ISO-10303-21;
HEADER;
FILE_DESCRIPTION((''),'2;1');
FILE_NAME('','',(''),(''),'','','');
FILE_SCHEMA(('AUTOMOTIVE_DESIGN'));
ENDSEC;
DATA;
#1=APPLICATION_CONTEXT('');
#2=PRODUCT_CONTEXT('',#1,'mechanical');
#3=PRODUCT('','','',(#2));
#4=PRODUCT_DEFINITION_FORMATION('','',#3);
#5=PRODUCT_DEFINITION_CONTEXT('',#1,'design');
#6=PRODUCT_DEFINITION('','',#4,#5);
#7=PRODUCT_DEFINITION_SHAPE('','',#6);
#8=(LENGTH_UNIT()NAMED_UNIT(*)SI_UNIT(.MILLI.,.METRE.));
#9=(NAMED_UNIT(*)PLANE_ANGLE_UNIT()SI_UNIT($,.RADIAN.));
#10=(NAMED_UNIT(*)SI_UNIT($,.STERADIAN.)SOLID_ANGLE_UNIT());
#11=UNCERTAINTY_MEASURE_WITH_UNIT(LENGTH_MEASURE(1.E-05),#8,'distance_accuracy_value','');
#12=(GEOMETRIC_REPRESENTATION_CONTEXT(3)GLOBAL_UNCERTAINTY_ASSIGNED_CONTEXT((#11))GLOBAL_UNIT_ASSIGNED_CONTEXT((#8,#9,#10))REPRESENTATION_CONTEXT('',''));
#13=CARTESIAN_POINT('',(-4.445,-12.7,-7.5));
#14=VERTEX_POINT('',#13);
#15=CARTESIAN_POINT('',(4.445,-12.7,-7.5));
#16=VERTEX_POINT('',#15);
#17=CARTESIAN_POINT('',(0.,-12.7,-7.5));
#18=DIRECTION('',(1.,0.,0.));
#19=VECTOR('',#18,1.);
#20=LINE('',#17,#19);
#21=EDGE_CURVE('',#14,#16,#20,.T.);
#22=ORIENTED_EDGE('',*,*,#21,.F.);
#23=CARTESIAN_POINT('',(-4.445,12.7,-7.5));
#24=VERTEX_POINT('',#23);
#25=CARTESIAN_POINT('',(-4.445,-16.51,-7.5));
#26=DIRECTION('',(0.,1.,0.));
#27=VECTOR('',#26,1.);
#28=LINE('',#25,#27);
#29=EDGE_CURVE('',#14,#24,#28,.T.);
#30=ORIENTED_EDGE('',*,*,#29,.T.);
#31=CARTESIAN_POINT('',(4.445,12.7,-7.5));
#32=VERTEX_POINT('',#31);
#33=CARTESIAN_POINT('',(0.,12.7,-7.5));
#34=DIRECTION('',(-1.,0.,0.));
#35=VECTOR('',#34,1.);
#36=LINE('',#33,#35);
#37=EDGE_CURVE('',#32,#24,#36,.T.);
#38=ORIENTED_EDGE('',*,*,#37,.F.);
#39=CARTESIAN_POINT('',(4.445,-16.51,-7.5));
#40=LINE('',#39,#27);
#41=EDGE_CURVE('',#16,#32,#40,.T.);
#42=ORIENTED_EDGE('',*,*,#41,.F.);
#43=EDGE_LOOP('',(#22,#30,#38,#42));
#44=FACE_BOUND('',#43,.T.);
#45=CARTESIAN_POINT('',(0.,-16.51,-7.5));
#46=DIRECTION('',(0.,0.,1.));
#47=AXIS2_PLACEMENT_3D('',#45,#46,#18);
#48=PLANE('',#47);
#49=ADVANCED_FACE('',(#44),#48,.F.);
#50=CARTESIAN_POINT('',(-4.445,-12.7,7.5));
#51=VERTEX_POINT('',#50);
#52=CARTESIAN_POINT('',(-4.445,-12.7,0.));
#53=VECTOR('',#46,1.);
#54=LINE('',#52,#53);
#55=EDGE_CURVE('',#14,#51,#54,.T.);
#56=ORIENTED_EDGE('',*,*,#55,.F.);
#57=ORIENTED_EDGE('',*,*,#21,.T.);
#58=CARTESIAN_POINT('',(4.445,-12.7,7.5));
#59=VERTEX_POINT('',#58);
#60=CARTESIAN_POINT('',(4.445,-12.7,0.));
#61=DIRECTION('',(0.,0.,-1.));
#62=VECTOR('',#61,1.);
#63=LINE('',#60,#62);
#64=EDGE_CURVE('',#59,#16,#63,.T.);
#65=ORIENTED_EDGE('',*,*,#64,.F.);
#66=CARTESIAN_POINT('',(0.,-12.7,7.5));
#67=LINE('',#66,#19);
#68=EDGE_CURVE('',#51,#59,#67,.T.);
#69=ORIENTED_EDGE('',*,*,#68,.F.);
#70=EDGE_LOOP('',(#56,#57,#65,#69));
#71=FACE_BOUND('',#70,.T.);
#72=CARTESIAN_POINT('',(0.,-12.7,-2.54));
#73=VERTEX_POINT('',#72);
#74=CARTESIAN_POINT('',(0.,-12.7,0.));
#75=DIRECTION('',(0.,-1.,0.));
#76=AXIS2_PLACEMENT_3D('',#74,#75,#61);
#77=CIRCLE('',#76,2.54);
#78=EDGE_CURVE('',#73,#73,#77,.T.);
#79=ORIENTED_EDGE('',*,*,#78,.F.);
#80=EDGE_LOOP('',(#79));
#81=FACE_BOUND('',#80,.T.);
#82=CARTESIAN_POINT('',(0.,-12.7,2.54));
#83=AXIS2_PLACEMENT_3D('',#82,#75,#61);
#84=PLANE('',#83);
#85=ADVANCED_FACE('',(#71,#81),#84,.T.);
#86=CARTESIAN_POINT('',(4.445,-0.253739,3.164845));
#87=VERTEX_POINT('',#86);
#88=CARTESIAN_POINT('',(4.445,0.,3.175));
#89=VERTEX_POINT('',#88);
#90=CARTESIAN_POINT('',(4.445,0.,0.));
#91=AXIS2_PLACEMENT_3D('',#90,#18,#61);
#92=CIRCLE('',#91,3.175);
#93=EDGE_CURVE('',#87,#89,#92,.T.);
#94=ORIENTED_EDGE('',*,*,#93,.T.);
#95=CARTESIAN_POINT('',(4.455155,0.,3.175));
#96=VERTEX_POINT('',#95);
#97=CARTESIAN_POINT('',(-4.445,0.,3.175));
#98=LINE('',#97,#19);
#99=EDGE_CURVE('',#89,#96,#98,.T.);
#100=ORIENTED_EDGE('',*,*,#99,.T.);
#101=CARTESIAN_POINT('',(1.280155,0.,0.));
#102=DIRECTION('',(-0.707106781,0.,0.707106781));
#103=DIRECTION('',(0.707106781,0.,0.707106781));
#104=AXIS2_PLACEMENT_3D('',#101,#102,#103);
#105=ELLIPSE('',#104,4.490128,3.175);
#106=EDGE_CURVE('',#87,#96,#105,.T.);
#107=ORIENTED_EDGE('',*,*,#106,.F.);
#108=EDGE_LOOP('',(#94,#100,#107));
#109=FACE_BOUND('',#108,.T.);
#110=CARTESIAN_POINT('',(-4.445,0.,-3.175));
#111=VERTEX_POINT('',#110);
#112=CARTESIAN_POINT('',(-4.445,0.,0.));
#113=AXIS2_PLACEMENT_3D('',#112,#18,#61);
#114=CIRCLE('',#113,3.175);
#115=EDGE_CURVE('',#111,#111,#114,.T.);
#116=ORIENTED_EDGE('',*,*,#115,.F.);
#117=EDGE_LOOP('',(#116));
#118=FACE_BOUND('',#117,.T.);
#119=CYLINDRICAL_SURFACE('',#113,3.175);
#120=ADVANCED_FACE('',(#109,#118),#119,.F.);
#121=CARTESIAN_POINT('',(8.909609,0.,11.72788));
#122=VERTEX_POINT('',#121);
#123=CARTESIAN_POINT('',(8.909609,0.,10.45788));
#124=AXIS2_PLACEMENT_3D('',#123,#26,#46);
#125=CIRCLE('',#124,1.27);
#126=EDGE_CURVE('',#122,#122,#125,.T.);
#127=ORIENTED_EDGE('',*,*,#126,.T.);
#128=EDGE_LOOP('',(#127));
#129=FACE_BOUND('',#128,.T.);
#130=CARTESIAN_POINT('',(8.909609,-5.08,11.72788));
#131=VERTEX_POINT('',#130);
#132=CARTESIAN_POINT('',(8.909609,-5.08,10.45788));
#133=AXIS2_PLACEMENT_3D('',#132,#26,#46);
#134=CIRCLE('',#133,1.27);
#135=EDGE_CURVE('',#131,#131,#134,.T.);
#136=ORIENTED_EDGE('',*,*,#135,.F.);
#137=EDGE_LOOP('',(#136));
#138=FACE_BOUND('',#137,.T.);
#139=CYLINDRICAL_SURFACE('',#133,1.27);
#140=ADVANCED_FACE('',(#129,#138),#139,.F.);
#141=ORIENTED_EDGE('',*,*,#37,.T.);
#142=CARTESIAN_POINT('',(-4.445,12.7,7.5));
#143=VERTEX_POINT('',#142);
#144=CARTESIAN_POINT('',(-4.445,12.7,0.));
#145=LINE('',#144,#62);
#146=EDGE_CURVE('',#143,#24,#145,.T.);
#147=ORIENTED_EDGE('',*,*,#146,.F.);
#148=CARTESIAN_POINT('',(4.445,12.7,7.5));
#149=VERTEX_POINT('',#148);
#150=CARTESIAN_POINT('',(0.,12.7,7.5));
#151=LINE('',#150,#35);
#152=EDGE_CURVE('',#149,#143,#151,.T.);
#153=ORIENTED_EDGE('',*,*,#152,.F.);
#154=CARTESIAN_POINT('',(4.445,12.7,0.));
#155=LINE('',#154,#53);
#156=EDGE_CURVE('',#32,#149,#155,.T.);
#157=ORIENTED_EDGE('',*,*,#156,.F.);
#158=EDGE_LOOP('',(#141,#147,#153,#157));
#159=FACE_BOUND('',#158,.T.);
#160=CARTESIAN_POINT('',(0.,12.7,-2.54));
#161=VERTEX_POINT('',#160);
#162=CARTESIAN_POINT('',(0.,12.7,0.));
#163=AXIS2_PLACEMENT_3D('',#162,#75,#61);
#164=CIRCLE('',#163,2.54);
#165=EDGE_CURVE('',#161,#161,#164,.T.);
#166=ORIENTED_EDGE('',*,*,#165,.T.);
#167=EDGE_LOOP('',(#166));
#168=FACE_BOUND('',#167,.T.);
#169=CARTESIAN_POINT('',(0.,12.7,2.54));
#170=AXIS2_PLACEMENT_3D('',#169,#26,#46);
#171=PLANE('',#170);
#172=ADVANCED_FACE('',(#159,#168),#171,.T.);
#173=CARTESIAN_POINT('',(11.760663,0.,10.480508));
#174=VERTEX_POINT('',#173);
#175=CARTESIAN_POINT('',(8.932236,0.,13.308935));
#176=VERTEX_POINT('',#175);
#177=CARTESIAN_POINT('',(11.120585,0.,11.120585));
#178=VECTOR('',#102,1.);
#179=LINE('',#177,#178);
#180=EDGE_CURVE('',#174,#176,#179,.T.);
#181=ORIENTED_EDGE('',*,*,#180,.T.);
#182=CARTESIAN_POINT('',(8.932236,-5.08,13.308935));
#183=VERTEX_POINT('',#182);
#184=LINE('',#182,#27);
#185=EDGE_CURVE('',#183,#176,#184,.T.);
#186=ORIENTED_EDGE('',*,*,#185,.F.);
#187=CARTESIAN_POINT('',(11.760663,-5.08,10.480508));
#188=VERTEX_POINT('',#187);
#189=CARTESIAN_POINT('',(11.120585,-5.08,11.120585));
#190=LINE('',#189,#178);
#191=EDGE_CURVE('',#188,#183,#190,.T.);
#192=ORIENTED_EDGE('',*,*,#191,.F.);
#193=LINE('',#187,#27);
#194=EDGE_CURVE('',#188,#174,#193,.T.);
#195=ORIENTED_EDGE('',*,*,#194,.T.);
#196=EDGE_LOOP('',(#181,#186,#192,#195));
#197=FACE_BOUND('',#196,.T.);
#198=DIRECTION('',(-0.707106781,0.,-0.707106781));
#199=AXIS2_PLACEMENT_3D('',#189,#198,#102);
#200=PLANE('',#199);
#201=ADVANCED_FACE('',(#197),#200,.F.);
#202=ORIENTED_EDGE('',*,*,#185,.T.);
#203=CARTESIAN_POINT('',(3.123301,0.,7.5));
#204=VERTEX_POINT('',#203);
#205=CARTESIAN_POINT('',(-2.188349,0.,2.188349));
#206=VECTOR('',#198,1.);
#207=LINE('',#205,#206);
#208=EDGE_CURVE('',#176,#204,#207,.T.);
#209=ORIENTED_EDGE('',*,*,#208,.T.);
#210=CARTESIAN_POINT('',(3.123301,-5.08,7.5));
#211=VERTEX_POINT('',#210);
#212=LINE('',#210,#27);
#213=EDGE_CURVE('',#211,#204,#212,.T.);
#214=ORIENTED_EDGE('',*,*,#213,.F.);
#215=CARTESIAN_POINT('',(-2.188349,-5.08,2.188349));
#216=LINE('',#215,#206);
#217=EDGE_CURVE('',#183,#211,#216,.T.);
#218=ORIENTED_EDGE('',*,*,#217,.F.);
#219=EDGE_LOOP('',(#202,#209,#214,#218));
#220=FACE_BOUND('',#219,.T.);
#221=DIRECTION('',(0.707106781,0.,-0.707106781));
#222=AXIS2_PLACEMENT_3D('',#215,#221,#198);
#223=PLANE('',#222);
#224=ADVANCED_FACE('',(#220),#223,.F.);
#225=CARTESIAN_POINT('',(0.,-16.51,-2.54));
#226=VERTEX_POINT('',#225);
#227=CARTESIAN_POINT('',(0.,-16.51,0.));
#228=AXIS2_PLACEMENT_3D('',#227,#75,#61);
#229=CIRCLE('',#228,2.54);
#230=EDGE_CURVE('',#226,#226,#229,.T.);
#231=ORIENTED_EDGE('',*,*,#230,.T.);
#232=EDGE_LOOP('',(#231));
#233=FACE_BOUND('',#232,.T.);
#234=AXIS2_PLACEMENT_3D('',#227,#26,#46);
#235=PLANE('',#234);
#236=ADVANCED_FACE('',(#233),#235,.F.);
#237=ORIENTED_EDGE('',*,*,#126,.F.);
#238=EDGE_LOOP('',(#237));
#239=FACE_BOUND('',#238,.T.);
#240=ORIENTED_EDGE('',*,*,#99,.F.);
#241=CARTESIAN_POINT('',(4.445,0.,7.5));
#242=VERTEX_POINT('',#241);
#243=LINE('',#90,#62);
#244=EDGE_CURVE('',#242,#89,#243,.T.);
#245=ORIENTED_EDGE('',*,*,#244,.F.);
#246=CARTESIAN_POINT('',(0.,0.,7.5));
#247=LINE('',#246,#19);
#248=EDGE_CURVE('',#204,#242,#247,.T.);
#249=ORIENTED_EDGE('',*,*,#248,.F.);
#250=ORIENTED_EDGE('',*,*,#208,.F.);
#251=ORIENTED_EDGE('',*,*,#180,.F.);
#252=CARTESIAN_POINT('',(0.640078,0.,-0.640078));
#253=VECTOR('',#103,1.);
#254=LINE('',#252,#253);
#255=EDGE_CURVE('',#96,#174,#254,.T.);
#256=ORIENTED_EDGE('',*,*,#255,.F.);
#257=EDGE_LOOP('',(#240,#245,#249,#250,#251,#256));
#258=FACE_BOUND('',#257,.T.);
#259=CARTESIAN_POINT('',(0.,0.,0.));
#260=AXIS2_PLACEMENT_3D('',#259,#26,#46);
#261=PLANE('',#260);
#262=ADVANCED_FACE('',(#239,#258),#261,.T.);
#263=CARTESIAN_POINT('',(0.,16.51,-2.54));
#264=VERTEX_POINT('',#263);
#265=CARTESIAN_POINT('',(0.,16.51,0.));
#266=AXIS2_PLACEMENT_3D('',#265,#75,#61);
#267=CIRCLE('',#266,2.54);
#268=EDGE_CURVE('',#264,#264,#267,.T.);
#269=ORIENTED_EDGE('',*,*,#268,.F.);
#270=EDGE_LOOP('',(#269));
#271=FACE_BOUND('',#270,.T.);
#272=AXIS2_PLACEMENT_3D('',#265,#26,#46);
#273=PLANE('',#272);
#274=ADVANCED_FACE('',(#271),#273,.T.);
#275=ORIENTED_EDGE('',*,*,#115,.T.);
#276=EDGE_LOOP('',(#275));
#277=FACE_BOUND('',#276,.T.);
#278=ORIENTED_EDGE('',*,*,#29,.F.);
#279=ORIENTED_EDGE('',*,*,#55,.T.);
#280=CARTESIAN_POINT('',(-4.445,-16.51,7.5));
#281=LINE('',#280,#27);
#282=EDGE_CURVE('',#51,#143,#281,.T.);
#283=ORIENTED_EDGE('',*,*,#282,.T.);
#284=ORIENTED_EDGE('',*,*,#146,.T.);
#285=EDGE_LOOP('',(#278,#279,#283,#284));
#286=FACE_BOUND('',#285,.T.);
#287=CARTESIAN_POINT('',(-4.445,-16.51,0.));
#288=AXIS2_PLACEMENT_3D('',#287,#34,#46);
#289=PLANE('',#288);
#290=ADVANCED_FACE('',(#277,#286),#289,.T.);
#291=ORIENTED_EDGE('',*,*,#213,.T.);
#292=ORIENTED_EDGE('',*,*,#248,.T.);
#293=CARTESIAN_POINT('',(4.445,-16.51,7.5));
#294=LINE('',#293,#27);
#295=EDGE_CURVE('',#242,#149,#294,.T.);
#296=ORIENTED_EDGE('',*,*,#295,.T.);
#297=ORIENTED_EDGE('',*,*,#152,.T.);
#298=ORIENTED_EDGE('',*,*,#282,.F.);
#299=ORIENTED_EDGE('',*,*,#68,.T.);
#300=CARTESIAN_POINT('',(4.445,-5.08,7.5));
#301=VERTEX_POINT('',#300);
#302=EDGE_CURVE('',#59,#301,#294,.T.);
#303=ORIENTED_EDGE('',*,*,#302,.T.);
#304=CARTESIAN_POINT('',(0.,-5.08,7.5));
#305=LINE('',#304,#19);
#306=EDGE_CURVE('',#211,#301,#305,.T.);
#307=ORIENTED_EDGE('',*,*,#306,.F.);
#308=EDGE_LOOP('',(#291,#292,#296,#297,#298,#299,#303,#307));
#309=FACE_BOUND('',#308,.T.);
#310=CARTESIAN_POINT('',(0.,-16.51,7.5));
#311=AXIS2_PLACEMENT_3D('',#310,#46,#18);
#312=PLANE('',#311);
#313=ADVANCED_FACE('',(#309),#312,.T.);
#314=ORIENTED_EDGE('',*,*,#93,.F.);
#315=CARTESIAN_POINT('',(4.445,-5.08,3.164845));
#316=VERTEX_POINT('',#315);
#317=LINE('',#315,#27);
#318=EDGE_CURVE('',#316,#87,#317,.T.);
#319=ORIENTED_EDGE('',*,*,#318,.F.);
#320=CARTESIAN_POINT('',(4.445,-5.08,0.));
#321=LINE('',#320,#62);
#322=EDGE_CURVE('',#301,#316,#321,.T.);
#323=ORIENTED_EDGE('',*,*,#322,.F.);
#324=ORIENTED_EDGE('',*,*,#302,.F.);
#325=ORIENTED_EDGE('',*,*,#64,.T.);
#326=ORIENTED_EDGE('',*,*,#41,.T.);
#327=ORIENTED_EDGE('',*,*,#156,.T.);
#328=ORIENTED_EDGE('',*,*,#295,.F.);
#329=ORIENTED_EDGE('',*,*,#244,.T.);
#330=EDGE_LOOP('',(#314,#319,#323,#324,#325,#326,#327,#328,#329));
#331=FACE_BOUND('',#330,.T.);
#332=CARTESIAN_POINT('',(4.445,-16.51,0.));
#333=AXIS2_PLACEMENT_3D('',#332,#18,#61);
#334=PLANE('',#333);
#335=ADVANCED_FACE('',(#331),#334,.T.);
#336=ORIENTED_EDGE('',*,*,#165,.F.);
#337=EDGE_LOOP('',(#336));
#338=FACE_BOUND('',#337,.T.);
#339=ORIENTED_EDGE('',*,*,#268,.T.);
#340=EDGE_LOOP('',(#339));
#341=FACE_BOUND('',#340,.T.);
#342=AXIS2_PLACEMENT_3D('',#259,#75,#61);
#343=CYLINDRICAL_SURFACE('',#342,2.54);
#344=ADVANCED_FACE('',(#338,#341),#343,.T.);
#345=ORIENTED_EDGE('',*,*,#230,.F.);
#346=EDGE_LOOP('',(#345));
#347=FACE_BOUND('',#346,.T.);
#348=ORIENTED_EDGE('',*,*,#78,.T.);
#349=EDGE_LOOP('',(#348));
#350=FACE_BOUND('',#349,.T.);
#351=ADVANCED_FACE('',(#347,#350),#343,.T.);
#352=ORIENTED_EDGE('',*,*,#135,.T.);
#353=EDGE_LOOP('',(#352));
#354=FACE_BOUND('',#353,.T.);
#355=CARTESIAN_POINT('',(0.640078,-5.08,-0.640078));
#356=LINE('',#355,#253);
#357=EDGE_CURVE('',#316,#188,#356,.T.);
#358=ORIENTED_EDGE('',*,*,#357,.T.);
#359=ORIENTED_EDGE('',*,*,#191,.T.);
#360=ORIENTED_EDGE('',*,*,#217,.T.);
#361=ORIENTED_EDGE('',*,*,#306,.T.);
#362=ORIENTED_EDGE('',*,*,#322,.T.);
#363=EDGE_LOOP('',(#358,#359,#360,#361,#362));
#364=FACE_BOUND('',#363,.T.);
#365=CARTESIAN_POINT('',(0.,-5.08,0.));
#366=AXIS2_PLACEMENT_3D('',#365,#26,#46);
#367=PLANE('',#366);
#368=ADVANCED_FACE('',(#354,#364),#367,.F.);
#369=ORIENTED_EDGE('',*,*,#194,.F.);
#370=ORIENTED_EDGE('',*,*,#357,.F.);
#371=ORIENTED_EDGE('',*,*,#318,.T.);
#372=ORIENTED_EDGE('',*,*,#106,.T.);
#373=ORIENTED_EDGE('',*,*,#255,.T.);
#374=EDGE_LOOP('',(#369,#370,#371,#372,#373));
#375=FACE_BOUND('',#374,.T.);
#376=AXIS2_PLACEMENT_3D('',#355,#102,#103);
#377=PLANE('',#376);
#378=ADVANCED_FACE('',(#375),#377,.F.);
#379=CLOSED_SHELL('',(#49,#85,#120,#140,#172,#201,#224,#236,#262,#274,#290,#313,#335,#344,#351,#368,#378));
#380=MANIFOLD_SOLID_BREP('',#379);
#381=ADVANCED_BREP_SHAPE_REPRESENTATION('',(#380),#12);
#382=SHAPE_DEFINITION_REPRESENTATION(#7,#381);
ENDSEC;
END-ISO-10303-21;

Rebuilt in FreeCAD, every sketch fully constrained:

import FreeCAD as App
import Part
import Sketcher

V = App.Vector
Q = App.Units.Quantity

doc = App.newDocument("Part")
body = doc.addObject("PartDesign::Body", "Body")

sketch1 = body.newObject("Sketcher::SketchObject", "Sketch")
sketch1.AttachmentSupport = (doc.getObject("XZ_Plane"), [""])
sketch1.MapMode = "FlatFace"
sketch1.addGeometry([
    Part.LineSegment(V(-4.445, -7.5, 0), V(-4.445, 7.5, 0)),
    Part.LineSegment(V(-4.445, 7.5, 0), V(4.445, 7.5, 0)),
    Part.LineSegment(V(4.445, 7.5, 0), V(4.445, -7.5, 0)),
    Part.LineSegment(V(4.445, -7.5, 0), V(-4.445, -7.5, 0)),
], False)
sketch1.addConstraint([
    Sketcher.Constraint("Coincident", 0, 2, 1, 1),
    Sketcher.Constraint("Coincident", 1, 2, 2, 1),
    Sketcher.Constraint("Coincident", 2, 2, 3, 1),
    Sketcher.Constraint("Coincident", 3, 2, 0, 1),
    Sketcher.Constraint("Vertical", 0),
    Sketcher.Constraint("Horizontal", 1),
    Sketcher.Constraint("Vertical", 2),
    Sketcher.Constraint("Horizontal", 3),
    Sketcher.Constraint("Symmetric", 0, 2, 2, 2, -1, 1),
    Sketcher.Constraint("DistanceX", 1, 1, 1, 2, Q("0.35 in")),
    Sketcher.Constraint("DistanceY", 0, 1, 0, 2, 15.0),
])
pad1 = body.newObject("PartDesign::Pad", "Pad")
pad1.Profile = sketch1
pad1.Type = "TwoLengths"
pad1.Length = Q("0.65 in")
pad1.Length2 = Q("0.65 in")
pad1.Reversed = True

sketch2 = body.newObject("Sketcher::SketchObject", "Sketch001")
sketch2.AttachmentSupport = (doc.getObject("XZ_Plane"), [""])
sketch2.MapMode = "FlatFace"
sketch2.addGeometry([
    Part.LineSegment(V(11.760663, 10.480508, 0), V(4.445, 3.164845, 0)),
    Part.LineSegment(V(4.445, 3.164845, 0), V(4.445, 7.5, 0)),
    Part.LineSegment(V(4.445, 7.5, 0), V(3.123301, 7.5, 0)),
    Part.LineSegment(V(3.123301, 7.5, 0), V(8.932236, 13.308935, 0)),
    Part.LineSegment(V(8.932236, 13.308935, 0), V(11.760663, 10.480508, 0)),
    Part.Circle(V(8.909609, 10.45788, 0), V(0, 0, 1), 1.27),
], False)
sketch2.addConstraint([
    Sketcher.Constraint("Coincident", 0, 2, 1, 1),
    Sketcher.Constraint("Coincident", 1, 2, 2, 1),
    Sketcher.Constraint("Coincident", 2, 2, 3, 1),
    Sketcher.Constraint("Coincident", 3, 2, 4, 1),
    Sketcher.Constraint("Coincident", 4, 2, 0, 1),
    Sketcher.Constraint("Vertical", 1),
    Sketcher.Constraint("Horizontal", 2),
    Sketcher.Constraint("Parallel", 0, 3),
    Sketcher.Constraint("Perpendicular", 3, 4),
    Sketcher.Constraint("Diameter", 5, Q("0.1 in")),
    Sketcher.Constraint("Angle", 0, Q("-135 deg")),
    Sketcher.Constraint("DistanceX", -1, 1, 0, 2, Q("0.175 in")),
    Sketcher.Constraint("DistanceX", 2, 2, 2, 1, 1.321699),
    Sketcher.Constraint("DistanceY", -1, 1, 0, 2, Q("0.1246002 in")),
    Sketcher.Constraint("Distance", 4, 4.0),
    Sketcher.Constraint("Distance", 0, 10.34591),
    Sketcher.Constraint("DistanceX", -1, 1, 5, 3, 8.909609),
    Sketcher.Constraint("DistanceY", -1, 1, 5, 3, 10.45788),
])
pad2 = body.newObject("PartDesign::Pad", "Pad001")
pad2.Profile = sketch2
pad2.Length = Q("0.2 in")

sketch3 = body.newObject("Sketcher::SketchObject", "Sketch002")
sketch3.AttachmentSupport = (doc.getObject("YZ_Plane"), [""])
sketch3.MapMode = "FlatFace"
sketch3.addGeometry([
    Part.LineSegment(V(16.51, 19.316229, 0), V(12.7, 19.316229, 0)),
    Part.LineSegment(V(12.7, 19.316229, 0), V(12.7, 2.54, 0)),
    Part.LineSegment(V(12.7, 2.54, 0), V(16.51, 2.54, 0)),
    Part.LineSegment(V(16.51, 2.54, 0), V(16.51, 19.316229, 0)),
    Part.LineSegment(V(-12.7, 19.316229, 0), V(-16.51, 19.316229, 0)),
    Part.LineSegment(V(-16.51, 19.316229, 0), V(-16.51, 2.54, 0)),
    Part.LineSegment(V(-16.51, 2.54, 0), V(-12.7, 2.54, 0)),
    Part.LineSegment(V(-12.7, 2.54, 0), V(-12.7, 19.316229, 0)),
], False)
sketch3.addConstraint([
    Sketcher.Constraint("Coincident", 0, 2, 1, 1),
    Sketcher.Constraint("Coincident", 1, 2, 2, 1),
    Sketcher.Constraint("Coincident", 2, 2, 3, 1),
    Sketcher.Constraint("Coincident", 3, 2, 0, 1),
    Sketcher.Constraint("Coincident", 4, 2, 5, 1),
    Sketcher.Constraint("Coincident", 5, 2, 6, 1),
    Sketcher.Constraint("Coincident", 6, 2, 7, 1),
    Sketcher.Constraint("Coincident", 7, 2, 4, 1),
    Sketcher.Constraint("Horizontal", 0),
    Sketcher.Constraint("Vertical", 1),
    Sketcher.Constraint("Horizontal", 2),
    Sketcher.Constraint("Vertical", 3),
    Sketcher.Constraint("Horizontal", 4),
    Sketcher.Constraint("Vertical", 5),
    Sketcher.Constraint("Horizontal", 6),
    Sketcher.Constraint("Vertical", 7),
    Sketcher.Constraint("Symmetric", 3, 2, 4, 2, -2),
    Sketcher.Constraint("Symmetric", 1, 2, 6, 2, -2),
    Sketcher.Constraint("DistanceX", 6, 2, 1, 2, Q("1 in")),
    Sketcher.Constraint("DistanceX", 0, 2, 0, 1, Q("0.15 in")),
    Sketcher.Constraint("DistanceY", -1, 1, 1, 2, Q("0.1 in")),
    Sketcher.Constraint("DistanceY", 1, 2, 1, 1, 16.776229),
])
groove = body.newObject("PartDesign::Groove", "Groove")
groove.Profile = sketch3
groove.ReferenceAxis = (sketch3, ["H_Axis"])
groove.Angle = 360

sketch4 = body.newObject("Sketcher::SketchObject", "Sketch003")
sketch4.AttachmentSupport = (doc.getObject("YZ_Plane"), [""])
sketch4.MapMode = "FlatFace"
sketch4.addGeometry(Part.Circle(V(0, 0, 0), V(0, 0, 1), 3.175), False)
sketch4.addConstraint([
    Sketcher.Constraint("Coincident", 0, 3, -1, 1),
    Sketcher.Constraint("Diameter", 0, Q("0.25 in")),
])
pocket1 = body.newObject("PartDesign::Pocket", "Pocket")
pocket1.Profile = sketch4
pocket1.Type = "ThroughAll"
pocket1.Midplane = True

doc.recompute()
